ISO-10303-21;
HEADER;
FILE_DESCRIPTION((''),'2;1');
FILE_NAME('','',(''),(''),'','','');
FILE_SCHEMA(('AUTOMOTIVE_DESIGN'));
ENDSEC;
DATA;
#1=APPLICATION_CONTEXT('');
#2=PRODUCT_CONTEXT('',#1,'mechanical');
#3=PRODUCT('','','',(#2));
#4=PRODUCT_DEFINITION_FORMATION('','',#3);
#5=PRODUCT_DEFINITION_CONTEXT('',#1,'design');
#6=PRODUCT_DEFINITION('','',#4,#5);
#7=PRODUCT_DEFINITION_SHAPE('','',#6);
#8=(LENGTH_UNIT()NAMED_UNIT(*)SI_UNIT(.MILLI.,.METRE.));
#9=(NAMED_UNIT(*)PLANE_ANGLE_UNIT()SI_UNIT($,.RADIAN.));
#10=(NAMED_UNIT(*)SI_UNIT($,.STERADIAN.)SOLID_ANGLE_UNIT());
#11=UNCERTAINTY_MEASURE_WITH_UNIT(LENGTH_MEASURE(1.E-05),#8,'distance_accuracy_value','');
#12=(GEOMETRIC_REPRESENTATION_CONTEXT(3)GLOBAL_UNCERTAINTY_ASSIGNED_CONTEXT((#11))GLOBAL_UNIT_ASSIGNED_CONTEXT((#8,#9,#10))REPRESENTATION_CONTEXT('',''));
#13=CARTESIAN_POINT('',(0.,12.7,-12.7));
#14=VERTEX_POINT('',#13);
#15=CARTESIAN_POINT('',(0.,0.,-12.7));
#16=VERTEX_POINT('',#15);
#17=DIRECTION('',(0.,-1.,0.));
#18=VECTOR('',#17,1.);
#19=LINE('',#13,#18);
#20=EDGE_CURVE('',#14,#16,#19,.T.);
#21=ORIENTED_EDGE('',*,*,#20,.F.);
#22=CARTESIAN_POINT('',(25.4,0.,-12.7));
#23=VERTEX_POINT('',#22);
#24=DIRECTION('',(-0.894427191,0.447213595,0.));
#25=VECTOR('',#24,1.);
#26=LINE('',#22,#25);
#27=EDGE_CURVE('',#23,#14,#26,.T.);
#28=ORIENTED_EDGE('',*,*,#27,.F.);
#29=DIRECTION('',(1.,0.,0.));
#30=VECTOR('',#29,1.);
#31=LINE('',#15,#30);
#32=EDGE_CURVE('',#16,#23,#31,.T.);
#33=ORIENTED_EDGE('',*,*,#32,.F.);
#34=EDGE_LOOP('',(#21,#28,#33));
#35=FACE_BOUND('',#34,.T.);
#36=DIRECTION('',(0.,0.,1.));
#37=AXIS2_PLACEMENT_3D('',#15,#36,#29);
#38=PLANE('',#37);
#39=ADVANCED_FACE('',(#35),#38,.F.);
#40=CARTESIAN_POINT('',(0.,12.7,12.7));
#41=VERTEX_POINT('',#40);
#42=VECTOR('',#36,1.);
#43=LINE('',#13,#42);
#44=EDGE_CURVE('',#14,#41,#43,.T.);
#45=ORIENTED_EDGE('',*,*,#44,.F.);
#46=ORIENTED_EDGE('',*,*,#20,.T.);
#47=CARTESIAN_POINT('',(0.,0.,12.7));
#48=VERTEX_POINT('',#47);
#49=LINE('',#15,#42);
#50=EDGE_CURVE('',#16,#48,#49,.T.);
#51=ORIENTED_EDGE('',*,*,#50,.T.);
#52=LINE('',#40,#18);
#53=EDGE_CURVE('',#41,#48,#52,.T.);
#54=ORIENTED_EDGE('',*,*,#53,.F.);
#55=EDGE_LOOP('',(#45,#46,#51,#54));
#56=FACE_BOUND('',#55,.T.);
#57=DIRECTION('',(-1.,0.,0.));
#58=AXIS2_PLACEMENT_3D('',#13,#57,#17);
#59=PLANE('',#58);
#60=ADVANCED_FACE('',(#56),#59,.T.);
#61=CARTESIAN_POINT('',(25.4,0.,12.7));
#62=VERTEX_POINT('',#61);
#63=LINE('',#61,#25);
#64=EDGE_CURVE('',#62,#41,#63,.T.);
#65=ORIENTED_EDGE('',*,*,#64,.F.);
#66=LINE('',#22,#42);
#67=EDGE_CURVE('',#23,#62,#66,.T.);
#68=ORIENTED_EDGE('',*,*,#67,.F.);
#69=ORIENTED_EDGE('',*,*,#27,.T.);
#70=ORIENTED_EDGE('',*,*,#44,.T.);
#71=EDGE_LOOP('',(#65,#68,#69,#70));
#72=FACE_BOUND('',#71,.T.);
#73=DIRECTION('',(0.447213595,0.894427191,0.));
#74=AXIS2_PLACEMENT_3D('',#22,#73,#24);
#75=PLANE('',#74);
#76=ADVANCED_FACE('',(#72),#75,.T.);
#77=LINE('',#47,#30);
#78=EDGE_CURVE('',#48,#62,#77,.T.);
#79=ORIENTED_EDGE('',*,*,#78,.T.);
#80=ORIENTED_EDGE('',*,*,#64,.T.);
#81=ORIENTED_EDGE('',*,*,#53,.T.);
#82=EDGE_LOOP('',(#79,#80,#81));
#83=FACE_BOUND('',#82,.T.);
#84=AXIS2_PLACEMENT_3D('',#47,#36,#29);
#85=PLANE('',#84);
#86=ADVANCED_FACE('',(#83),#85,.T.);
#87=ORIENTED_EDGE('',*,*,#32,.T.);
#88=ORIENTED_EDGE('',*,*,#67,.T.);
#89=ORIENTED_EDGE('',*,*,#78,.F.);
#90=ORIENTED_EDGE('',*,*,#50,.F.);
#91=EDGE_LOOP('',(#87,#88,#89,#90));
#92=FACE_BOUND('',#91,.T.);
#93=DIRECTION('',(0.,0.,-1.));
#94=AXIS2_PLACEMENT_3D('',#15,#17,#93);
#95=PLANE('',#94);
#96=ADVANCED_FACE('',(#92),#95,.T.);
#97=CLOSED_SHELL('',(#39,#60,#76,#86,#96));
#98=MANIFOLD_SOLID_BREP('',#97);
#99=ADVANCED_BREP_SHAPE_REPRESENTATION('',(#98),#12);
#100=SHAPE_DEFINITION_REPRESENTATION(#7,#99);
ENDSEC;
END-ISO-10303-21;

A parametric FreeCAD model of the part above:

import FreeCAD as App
import Part
import Sketcher
from FreeCAD import Vector
Q = App.Units.Quantity


def add_polygon(sketch, points):
    """Adds a closed chain of lines whose ends are joined by coincident constraints."""
    first, n = sketch.GeometryCount, len(points)
    for a, b in zip(points, points[1:] + points[:1]):
        sketch.addGeometry(Part.LineSegment(App.Vector(*a, 0), App.Vector(*b, 0)), False)
    for i in range(n):
        sketch.addConstraint(Sketcher.Constraint("Coincident", first + i, 2, first + (i + 1) % n, 1))

doc = App.newDocument("Part")
body = doc.addObject("PartDesign::Body", "Body")

sketch1 = body.newObject("Sketcher::SketchObject", "Sketch")
sketch1.AttachmentSupport = (doc.getObject("XY_Plane"), [""])
sketch1.MapMode = "FlatFace"
add_polygon(sketch1, [(0, 0), (25, 0), (0, 13)])
sketch1.addConstraint([
    Sketcher.Constraint("Horizontal", 0),
    Sketcher.Constraint("Vertical", 2),
    Sketcher.Constraint("Coincident", 2, 2, -1, 1),
    Sketcher.Constraint("DistanceX", 0, 1, 0, 2, Q("1 in")),
    Sketcher.Constraint("DistanceY", 2, 2, 2, 1, Q("0.5 in")),
])
pad1 = body.newObject("PartDesign::Pad", "Pad")
pad1.Profile = sketch1
pad1.Type = "TwoLengths"
pad1.Length = Q("0.5 in")
pad1.Length2 = Q("0.5 in")

doc.recompute()
